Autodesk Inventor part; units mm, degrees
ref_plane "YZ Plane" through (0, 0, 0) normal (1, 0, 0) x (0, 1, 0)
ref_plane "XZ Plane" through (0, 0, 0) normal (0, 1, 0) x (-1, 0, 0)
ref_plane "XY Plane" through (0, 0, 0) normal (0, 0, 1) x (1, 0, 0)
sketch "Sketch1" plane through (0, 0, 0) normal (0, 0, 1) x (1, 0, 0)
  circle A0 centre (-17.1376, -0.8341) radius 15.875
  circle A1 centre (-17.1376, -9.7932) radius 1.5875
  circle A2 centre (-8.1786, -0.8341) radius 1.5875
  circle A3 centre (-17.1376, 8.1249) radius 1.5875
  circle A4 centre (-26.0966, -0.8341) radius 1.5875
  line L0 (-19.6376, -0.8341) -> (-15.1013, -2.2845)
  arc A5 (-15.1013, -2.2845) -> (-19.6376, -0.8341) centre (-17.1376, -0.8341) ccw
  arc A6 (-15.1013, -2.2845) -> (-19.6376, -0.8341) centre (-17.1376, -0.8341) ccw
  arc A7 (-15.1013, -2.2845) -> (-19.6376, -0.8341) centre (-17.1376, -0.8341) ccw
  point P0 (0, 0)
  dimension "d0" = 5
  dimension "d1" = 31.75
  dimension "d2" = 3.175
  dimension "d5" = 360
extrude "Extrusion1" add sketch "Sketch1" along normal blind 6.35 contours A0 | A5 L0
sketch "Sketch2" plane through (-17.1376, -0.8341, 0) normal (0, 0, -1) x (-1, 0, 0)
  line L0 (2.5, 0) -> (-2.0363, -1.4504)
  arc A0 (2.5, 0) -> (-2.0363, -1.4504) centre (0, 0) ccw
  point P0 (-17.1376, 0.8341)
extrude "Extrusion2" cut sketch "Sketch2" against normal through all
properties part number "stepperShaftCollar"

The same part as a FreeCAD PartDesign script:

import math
import FreeCAD as App
import Part
import Sketcher
from FreeCAD import Vector
Q = App.Units.Quantity

doc = App.newDocument("Part")
params = doc.addObject("Spreadsheet::Sheet", "Params")
for row, (alias, value) in enumerate([
    ("sketch1_diameter", "1.25 in"),
    ("sketch1_diameter2", "0.125 in"),
    ("pad1_length", "0.25 in"),
    ("sketch2_length", "0.1875 in"),
], start=1):
    params.set(f"A{row}", alias)
    params.set(f"B{row}", "=" + value)
    params.setAlias(f"B{row}", alias)

body = doc.addObject("PartDesign::Body", "Body")

# Sketch on XY plane
sketch1 = body.newObject("Sketcher::SketchObject", "Sketch")
sketch1.AttachmentSupport = (doc.getObject("XY_Plane"), [""])
sketch1.MapMode = "FlatFace"
sketch1.addGeometry([
    Part.Circle(Vector(-17.1, -0.8, 0), Vector(0, 0, 1), 15.9),  # 0
    Part.Circle(Vector(-17.1, -9.8, 0), Vector(0, 0, 1), 1.6),  # 1
    Part.Circle(Vector(-26.1, -0.8, 0), Vector(0, 0, 1), 1.6),  # 2
    Part.Circle(Vector(-8.2, -0.8, 0), Vector(0, 0, 1), 1.6),  # 3
    Part.Circle(Vector(-17.1, 8.1, 0), Vector(0, 0, 1), 1.6),  # 4
], False)
sketch1.addConstraint([
    Sketcher.Constraint("Equal", 1, 2),
    Sketcher.Constraint("Equal", 2, 3),
    Sketcher.Constraint("Equal", 3, 4),
    Sketcher.Constraint("Horizontal", 0, 3, 2, 3),
    Sketcher.Constraint("Horizontal", 2, 3, 3, 3),
    Sketcher.Constraint("Vertical", 0, 3, 1, 3),
    Sketcher.Constraint("Vertical", 1, 3, 4, 3),
    Sketcher.Constraint("Diameter", 0, Q("1.25 in")),
    Sketcher.Constraint("Diameter", 1, Q("0.125 in")),
    Sketcher.Constraint("DistanceX", 3, 3, -1, 1, Q("0.322 in")),
    Sketcher.Constraint("DistanceX", 0, 3, -1, 1, Q("0.6747 in")),
    Sketcher.Constraint("DistanceY", 0, 3, -1, 1, 0.834),
    Sketcher.Constraint("DistanceY", 1, 3, -1, 1, 9.7932),
    Sketcher.Constraint("DistanceX", 2, 3, -1, 1, 26.0966),
    Sketcher.Constraint("DistanceY", -1, 1, 4, 3, 8.125),
])
sketch1.setExpression("Constraints[7]", "Params.sketch1_diameter")
sketch1.setExpression("Constraints[8]", "Params.sketch1_diameter2")
pad1 = body.newObject("PartDesign::Pad", "Pad")
pad1.Profile = sketch1
pad1.setExpression("Length", "Params.pad1_length")

# Sketch on XY plane
sketch2 = body.newObject("Sketcher::SketchObject", "Sketch001")
sketch2.AttachmentSupport = (doc.getObject("XY_Plane"), [""])
sketch2.MapMode = "FlatFace"
sketch2.addGeometry([
    Part.LineSegment(Vector(-15.1, -2.3, 0), Vector(-19.6, -0.8, 0)),
    Part.ArcOfCircle(Part.Circle(Vector(-17.1, -0.8, 0), Vector(0, 0, 1), 2.5), math.radians(-35), math.radians(180)),
], False)
sketch2.addConstraint([
    Sketcher.Constraint("Coincident", 0, 1, 1, 1),
    Sketcher.Constraint("Coincident", 1, 2, 0, 2),
    Sketcher.Constraint("Angle", 0, Q("162.2693 deg")),
    Sketcher.Constraint("Radius", 1, 2.5),
    Sketcher.Constraint("Distance", 0, Q("0.1875 in")),
    Sketcher.Constraint("DistanceX", 1, 3, -1, 1, Q("0.6747 in")),
    Sketcher.Constraint("DistanceY", 1, 3, -1, 1, 0.834),
])
sketch2.setExpression("Constraints[4]", "Params.sketch2_length")
pocket1 = body.newObject("PartDesign::Pocket", "Pocket")
pocket1.Profile = sketch2
pocket1.Type = "ThroughAll"
pocket1.Reversed = True

doc.recompute()
